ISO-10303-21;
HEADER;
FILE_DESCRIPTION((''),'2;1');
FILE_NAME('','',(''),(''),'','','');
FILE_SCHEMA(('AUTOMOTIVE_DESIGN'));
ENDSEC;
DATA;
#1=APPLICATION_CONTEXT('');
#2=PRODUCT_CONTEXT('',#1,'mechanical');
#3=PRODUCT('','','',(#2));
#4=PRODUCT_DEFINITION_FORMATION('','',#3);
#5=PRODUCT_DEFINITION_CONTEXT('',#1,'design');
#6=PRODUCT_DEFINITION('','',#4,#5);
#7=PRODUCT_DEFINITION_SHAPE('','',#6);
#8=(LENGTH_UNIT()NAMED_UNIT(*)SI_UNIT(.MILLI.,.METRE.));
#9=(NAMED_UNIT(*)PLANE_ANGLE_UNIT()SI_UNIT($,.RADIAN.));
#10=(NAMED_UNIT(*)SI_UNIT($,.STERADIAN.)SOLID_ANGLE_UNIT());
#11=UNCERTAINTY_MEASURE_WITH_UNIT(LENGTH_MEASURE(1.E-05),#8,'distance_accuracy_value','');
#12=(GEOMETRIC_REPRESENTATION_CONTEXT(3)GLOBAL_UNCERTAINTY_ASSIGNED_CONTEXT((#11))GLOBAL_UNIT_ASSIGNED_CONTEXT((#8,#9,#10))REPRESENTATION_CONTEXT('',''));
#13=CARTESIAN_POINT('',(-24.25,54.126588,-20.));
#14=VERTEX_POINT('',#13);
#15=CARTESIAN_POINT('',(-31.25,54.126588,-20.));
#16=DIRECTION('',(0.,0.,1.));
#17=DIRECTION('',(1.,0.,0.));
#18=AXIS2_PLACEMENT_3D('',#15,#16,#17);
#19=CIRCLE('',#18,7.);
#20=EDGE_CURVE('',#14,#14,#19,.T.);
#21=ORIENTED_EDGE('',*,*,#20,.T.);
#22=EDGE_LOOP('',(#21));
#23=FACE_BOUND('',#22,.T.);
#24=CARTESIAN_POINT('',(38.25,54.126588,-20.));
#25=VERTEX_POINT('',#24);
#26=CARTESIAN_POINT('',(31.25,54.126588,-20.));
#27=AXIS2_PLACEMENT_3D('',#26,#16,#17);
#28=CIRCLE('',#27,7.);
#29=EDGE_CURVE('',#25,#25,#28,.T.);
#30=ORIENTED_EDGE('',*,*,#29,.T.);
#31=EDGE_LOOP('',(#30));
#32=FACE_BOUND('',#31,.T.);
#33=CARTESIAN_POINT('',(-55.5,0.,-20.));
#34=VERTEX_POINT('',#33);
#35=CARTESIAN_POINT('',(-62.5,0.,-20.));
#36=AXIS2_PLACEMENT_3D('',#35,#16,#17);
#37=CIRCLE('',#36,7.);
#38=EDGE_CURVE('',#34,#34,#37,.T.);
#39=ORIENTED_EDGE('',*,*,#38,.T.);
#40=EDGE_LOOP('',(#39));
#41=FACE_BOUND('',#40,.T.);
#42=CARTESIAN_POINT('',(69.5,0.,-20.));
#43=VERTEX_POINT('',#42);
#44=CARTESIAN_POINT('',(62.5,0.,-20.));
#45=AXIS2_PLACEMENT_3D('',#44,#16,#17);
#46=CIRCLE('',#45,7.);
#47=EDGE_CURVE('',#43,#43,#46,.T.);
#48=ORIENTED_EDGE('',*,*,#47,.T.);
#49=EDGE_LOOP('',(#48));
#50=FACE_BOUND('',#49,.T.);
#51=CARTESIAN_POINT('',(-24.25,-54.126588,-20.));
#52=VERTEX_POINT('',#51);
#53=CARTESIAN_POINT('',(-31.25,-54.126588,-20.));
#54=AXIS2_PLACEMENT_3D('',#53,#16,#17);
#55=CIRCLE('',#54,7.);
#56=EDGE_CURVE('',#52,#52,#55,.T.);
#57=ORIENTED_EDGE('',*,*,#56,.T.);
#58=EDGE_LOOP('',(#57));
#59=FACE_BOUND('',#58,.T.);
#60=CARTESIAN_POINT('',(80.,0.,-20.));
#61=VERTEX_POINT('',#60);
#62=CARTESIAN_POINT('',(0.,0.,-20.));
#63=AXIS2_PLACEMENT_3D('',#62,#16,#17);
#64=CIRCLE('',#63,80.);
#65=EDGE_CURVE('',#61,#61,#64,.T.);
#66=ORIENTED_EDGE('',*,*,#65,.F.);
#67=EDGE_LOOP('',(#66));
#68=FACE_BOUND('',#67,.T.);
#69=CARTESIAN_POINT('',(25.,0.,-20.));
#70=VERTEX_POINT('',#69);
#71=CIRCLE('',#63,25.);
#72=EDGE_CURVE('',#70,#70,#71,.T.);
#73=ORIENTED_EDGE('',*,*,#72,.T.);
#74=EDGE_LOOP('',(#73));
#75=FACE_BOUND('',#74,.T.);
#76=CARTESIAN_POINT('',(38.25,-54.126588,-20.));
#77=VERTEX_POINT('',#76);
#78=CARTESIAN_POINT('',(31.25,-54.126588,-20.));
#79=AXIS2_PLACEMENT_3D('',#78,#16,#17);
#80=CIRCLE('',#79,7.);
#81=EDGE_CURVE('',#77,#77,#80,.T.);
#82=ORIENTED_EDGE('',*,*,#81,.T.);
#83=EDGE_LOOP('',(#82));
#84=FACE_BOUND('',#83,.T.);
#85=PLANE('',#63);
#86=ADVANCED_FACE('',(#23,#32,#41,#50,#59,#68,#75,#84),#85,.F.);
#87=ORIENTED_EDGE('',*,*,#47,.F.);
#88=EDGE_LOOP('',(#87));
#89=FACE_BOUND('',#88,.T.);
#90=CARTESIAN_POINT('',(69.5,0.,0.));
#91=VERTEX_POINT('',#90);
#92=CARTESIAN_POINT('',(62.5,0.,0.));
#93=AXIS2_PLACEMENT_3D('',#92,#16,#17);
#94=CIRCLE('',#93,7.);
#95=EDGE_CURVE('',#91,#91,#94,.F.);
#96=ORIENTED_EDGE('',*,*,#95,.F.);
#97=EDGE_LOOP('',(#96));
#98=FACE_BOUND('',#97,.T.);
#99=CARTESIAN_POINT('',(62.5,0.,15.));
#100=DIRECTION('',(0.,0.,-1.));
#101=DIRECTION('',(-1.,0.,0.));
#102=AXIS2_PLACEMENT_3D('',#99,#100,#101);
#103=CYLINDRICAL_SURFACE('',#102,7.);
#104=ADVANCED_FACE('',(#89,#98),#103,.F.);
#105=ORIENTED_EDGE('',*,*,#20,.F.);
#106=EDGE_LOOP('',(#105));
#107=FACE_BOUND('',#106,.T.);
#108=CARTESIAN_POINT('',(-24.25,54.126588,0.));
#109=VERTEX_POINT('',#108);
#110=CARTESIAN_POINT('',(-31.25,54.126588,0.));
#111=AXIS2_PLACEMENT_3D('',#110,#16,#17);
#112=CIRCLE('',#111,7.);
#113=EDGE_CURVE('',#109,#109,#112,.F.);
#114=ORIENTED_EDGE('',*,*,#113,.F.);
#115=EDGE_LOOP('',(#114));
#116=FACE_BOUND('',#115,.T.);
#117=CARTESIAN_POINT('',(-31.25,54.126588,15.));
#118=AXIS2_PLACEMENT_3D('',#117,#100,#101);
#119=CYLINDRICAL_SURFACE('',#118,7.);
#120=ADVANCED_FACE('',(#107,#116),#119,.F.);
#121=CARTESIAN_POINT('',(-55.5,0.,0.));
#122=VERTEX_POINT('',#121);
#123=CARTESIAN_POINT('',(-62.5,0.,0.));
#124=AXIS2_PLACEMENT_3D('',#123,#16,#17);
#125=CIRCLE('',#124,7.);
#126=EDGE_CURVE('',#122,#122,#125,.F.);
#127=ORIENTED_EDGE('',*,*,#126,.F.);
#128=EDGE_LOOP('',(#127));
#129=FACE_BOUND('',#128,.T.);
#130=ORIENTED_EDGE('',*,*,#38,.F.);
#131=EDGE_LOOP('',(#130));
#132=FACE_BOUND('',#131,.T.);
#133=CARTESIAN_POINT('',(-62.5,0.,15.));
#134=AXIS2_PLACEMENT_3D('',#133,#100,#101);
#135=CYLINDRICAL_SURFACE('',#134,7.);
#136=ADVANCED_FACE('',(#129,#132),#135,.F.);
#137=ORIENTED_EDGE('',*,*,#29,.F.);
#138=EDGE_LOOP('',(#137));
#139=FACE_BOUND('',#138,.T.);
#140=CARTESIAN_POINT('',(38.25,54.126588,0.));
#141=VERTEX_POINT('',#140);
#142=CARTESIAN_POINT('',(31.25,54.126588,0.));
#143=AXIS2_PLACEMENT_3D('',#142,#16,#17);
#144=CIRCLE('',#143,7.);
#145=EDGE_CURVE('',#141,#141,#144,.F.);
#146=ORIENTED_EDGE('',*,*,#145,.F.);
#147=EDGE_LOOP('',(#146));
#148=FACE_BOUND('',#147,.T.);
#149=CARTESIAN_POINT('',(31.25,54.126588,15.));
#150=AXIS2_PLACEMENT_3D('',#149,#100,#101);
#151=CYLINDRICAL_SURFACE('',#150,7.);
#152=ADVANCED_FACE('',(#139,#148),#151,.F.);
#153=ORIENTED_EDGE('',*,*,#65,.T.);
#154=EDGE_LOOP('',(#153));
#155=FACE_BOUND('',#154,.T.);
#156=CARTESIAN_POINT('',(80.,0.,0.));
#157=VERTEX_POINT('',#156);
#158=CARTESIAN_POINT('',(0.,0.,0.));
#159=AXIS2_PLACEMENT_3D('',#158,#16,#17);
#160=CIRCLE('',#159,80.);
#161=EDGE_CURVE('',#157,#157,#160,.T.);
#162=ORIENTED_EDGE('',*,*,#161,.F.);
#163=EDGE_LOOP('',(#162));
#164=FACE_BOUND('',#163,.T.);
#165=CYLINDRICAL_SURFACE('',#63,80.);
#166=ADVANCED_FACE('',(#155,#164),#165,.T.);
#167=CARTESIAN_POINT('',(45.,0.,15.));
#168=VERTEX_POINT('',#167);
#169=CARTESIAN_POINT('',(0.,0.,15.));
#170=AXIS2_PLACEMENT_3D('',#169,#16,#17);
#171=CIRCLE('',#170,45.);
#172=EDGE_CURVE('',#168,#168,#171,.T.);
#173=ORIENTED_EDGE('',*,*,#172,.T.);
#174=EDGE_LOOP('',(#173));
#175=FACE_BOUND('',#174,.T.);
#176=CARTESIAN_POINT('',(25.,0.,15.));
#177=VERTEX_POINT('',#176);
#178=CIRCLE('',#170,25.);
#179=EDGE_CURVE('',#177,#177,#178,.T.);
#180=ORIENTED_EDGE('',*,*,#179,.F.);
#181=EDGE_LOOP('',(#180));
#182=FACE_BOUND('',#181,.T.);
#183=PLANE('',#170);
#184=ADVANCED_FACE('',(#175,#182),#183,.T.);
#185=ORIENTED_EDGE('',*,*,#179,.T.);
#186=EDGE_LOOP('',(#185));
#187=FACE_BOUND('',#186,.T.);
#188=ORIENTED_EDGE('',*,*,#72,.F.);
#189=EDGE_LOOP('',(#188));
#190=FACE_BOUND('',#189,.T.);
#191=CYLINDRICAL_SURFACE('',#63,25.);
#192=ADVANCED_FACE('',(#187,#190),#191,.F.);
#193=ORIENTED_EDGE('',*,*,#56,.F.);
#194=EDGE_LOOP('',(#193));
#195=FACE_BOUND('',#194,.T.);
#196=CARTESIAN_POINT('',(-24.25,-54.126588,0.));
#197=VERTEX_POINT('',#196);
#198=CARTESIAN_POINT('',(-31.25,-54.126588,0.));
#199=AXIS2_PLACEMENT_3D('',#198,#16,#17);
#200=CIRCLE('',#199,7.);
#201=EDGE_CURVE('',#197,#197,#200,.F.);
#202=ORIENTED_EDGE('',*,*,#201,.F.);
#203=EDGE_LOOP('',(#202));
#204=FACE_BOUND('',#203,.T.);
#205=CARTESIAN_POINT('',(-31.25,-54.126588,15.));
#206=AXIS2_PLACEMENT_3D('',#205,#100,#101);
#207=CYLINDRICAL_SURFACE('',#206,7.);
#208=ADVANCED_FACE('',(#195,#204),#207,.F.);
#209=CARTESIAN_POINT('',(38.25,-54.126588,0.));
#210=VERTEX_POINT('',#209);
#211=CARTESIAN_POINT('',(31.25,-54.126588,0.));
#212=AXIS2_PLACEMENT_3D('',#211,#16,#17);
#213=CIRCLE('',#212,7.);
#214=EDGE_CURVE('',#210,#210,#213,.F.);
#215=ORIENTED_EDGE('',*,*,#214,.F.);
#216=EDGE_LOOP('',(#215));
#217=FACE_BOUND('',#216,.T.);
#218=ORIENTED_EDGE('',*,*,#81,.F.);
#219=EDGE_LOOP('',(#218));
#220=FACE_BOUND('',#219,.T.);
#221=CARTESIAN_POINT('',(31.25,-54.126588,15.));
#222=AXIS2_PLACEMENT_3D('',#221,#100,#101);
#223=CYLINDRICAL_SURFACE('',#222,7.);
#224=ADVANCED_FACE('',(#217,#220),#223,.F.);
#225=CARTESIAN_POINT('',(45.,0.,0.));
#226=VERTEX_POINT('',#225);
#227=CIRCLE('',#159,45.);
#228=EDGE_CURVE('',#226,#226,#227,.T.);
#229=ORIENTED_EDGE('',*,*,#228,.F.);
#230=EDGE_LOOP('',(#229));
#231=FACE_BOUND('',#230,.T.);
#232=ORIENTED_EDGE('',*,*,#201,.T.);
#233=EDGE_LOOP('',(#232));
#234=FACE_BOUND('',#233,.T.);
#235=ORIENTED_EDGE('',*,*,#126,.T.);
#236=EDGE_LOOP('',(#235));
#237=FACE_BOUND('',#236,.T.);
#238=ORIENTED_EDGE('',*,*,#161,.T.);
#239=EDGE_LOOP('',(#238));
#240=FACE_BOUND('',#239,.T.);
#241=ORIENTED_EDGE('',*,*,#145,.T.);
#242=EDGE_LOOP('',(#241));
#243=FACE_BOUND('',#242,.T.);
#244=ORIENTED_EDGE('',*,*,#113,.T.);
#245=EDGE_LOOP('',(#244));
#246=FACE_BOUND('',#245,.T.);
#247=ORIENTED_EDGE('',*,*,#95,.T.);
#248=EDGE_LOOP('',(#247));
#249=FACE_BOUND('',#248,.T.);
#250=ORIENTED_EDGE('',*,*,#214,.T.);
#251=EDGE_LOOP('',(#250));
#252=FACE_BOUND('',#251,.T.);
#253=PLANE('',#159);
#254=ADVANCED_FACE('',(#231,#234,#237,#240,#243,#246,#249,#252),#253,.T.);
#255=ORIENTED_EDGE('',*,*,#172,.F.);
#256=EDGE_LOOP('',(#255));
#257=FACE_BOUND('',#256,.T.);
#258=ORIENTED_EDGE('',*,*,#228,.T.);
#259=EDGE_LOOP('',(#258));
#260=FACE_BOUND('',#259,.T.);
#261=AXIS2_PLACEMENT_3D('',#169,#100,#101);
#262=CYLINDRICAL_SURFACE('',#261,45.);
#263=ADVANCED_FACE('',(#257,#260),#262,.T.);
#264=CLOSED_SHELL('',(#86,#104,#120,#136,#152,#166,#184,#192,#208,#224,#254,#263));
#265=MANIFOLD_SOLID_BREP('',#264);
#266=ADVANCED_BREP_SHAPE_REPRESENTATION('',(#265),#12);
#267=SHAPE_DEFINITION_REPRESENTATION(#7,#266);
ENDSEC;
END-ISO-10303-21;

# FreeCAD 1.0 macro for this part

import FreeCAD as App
import Part
import Sketcher

V = App.Vector

doc = App.newDocument("Part")
params = doc.addObject("Spreadsheet::Sheet", "Params")
for row, (alias, value) in enumerate([
    ("sketch1_diameter", "160 mm"),
    ("sketch1_diameter2", "50 mm"),
    ("pad1_length", "20 mm"),
    ("sketch2_diameter", "90 mm"),
    ("sketch2_diameter2", "50 mm"),
    ("pad2_length", "15 mm"),
    ("sketch3_diameter", "14 mm"),
], start=1):
    params.set(f"A{row}", alias)
    params.set(f"B{row}", "=" + value)
    params.setAlias(f"B{row}", alias)

body = doc.addObject("PartDesign::Body", "Body")

sketch1 = body.newObject("Sketcher::SketchObject", "Sketch")
sketch1.AttachmentSupport = (doc.getObject("XY_Plane"), [""])
sketch1.MapMode = "FlatFace"
sketch1.addGeometry([
    Part.Circle(V(0, 0, 0), V(0, 0, 1), 80),
    Part.Circle(V(0, 0, 0), V(0, 0, 1), 25),
], False)
sketch1.addConstraint([
    Sketcher.Constraint("Coincident", 0, 3, -1, 1),
    Sketcher.Constraint("Coincident", 1, 3, -1, 1),
    Sketcher.Constraint("Diameter", 0, 160.0),
    Sketcher.Constraint("Diameter", 1, 50.0),
])
sketch1.setExpression("Constraints[2]", "Params.sketch1_diameter")
sketch1.setExpression("Constraints[3]", "Params.sketch1_diameter2")
pad1 = body.newObject("PartDesign::Pad", "Pad")
pad1.Profile = sketch1
pad1.setExpression("Length", "Params.pad1_length")
pad1.Reversed = True

sketch2 = body.newObject("Sketcher::SketchObject", "Sketch001")
sketch2.AttachmentSupport = (doc.getObject("XY_Plane"), [""])
sketch2.MapMode = "FlatFace"
sketch2.AttachmentOffset = App.Placement(V(0, 0, 15), App.Rotation())
sketch2.addGeometry([
    Part.Circle(V(0, 0, 0), V(0, 0, 1), 45),
    Part.Circle(V(0, 0, 0), V(0, 0, 1), 25),
], False)
sketch2.addConstraint([
    Sketcher.Constraint("Coincident", 0, 3, -1, 1),
    Sketcher.Constraint("Coincident", 1, 3, -1, 1),
    Sketcher.Constraint("Diameter", 0, 90.0),
    Sketcher.Constraint("Diameter", 1, 50.0),
])
sketch2.setExpression("Constraints[2]", "Params.sketch2_diameter")
sketch2.setExpression("Constraints[3]", "Params.sketch2_diameter2")
pad2 = body.newObject("PartDesign::Pad", "Pad001")
pad2.Profile = sketch2
pad2.setExpression("Length", "Params.pad2_length")
pad2.Reversed = True

sketch3 = body.newObject("Sketcher::SketchObject", "Sketch002")
sketch3.AttachmentSupport = (doc.getObject("XY_Plane"), [""])
sketch3.MapMode = "FlatFace"
sketch3.addGeometry([
    Part.Circle(V(62, 0, 0), V(0, 0, 1), 7),
    Part.Circle(V(31, 54, 0), V(0, 0, 1), 7),
    Part.Circle(V(-31, 54, 0), V(0, 0, 1), 7),
    Part.Circle(V(-62, 0, 0), V(0, 0, 1), 7),
    Part.Circle(V(-31, -54, 0), V(0, 0, 1), 7),
    Part.Circle(V(31, -54, 0), V(0, 0, 1), 7),
], False)
sketch3.addConstraint([
    Sketcher.Constraint("Equal", 0, 1),
    Sketcher.Constraint("Equal", 1, 2),
    Sketcher.Constraint("Equal", 2, 3),
    Sketcher.Constraint("Equal", 3, 4),
    Sketcher.Constraint("Equal", 4, 5),
    Sketcher.Constraint("Symmetric", 0, 3, 3, 3, -1, 1),
    Sketcher.Constraint("Symmetric", 1, 3, 4, 3, -1, 1),
    Sketcher.Constraint("Symmetric", 2, 3, 5, 3, -1, 1),
    Sketcher.Constraint("Symmetric", 1, 3, 2, 3, -2),
    Sketcher.Constraint("PointOnObject", 0, 3, -1),
    Sketcher.Constraint("Diameter", 0, 14.0),
    Sketcher.Constraint("DistanceX", 3, 3, 0, 3, 125.0),
    Sketcher.Constraint("DistanceX", 2, 3, 1, 3, 62.5),
    Sketcher.Constraint("DistanceY", -1, 1, 1, 3, 54.126588),
])
sketch3.setExpression("Constraints[10]", "Params.sketch3_diameter")
pocket1 = body.newObject("PartDesign::Pocket", "Pocket")
pocket1.Profile = sketch3
pocket1.Type = "ThroughAll"
pocket1.Midplane = True

doc.recompute()
